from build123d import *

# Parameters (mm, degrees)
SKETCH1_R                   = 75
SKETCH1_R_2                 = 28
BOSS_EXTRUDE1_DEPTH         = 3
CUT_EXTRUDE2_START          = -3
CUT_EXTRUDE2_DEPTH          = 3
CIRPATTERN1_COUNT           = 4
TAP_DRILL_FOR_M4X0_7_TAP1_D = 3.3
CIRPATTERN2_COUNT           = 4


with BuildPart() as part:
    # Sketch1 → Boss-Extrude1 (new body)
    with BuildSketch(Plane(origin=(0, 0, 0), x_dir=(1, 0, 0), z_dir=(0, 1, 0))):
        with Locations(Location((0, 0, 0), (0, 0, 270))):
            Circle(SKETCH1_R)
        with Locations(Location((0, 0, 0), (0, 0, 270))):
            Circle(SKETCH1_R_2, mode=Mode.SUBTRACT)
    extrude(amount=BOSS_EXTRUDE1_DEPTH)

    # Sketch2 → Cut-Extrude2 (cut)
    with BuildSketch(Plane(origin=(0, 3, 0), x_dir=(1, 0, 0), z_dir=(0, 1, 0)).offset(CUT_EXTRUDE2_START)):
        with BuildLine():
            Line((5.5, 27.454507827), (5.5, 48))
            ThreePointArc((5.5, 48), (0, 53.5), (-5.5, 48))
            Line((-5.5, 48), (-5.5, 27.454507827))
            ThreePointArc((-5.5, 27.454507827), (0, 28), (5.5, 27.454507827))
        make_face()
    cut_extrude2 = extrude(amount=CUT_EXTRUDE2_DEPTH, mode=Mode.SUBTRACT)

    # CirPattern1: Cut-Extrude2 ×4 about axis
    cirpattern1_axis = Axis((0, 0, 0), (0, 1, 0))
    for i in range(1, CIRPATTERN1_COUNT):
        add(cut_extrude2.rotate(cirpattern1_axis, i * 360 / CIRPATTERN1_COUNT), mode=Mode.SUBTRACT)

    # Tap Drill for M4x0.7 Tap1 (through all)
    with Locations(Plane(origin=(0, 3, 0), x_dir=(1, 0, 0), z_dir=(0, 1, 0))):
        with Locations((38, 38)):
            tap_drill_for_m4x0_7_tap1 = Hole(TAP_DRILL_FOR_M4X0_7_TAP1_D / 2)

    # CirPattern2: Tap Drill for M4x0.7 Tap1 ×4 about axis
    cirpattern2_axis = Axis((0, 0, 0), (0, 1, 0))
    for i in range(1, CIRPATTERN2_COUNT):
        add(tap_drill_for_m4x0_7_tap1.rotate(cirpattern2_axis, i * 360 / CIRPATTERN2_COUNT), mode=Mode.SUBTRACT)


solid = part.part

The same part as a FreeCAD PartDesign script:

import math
import FreeCAD as App
import Part
import Sketcher

V = App.Vector
Q = App.Units.Quantity

doc = App.newDocument("Part")
body = doc.addObject("PartDesign::Body", "Body")

# Sketch on XZ plane
sketch1 = doc.addObject("Sketcher::SketchObject", "Sketch")
body.addObject(sketch1)
sketch1.AttachmentSupport = (doc.XZ_Plane, [""])
sketch1.MapMode = "FlatFace"
sketch1.addGeometry([
    Part.Circle(V(0, 0, 0), V(0, 0, 1), 75),
    Part.Circle(V(0, 0, 0), V(0, 0, 1), 28),
], False)
sketch1.addConstraint([
    Sketcher.Constraint("Coincident", 0, 3, -1, 1),
    Sketcher.Constraint("Coincident", 1, 3, -1, 1),
    Sketcher.Constraint("Diameter", 0, Q("150 mm")),
    Sketcher.Constraint("Diameter", 1, Q("56 mm")),
])
pad1 = doc.addObject("PartDesign::Pad", "Pad")
body.addObject(pad1)
pad1.Profile = sketch1
pad1.Length = 3
pad1.Reversed = True

# Sketch on XZ plane
sketch2 = doc.addObject("Sketcher::SketchObject", "Sketch001")
body.addObject(sketch2)
sketch2.AttachmentSupport = (doc.XZ_Plane, [""])
sketch2.MapMode = "FlatFace"
sketch2.addGeometry([
    Part.LineSegment(V(6, -27, 0), V(6, -48, 0)),
    Part.ArcOfCircle(Part.Circle(V(0, -48, 0), V(0, 0, 1), 6), math.radians(180), math.radians(360)),
    Part.LineSegment(V(-6, -48, 0), V(-6, -27, 0)),
    Part.ArcOfCircle(Part.Circle(V(0, 0, 0), V(0, 0, 1), 28), math.radians(-101), math.radians(-79)),
], False)
sketch2.addConstraint([
    Sketcher.Constraint("Tangent", 0, 2, 1, 2),
    Sketcher.Constraint("Tangent", 1, 1, 2, 1),
    Sketcher.Constraint("Coincident", 2, 2, 3, 1),
    Sketcher.Constraint("Coincident", 3, 2, 0, 1),
    Sketcher.Constraint("Vertical", 0),
    Sketcher.Constraint("Vertical", 2),
    Sketcher.Constraint("Coincident", 3, 3, -1, 1),
    Sketcher.Constraint("PointOnObject", 1, 3, -2),
    Sketcher.Constraint("Radius", 3, Q("28 mm")),
    Sketcher.Constraint("Radius", 1, Q("5.5 mm")),
    Sketcher.Constraint("DistanceY", 1, 3, -1, 1, Q("48 mm")),
])
pocket1 = doc.addObject("PartDesign::Pocket", "Pocket")
body.addObject(pocket1)
pocket1.Profile = sketch2
pocket1.Length = 3
doc.recompute()

polarpattern = doc.addObject("PartDesign::PolarPattern", "PolarPattern")
body.addObject(polarpattern)
polarpattern.Originals = [pocket1]
polarpattern.Axis = (doc.Y_Axis, [""])
polarpattern.Angle = 360
polarpattern.Occurrences = 4
body.Tip = polarpattern

# Sketch on XZ plane
sketch3 = doc.addObject("Sketcher::SketchObject", "Sketch002")
body.addObject(sketch3)
sketch3.AttachmentSupport = (doc.XZ_Plane, [""])
sketch3.MapMode = "FlatFace"
sketch3.AttachmentOffset = App.Placement(V(0, 0, -3), App.Rotation())
sketch3.addGeometry(Part.Circle(V(38, -38, 0), V(0, 0, 1), 1.6), False)
sketch3.addConstraint([
    Sketcher.Constraint("Diameter", 0, Q("3.3 mm")),
    Sketcher.Constraint("DistanceX", -1, 1, 0, 3, Q("38 mm")),
    Sketcher.Constraint("DistanceY", 0, 3, -1, 1, Q("38 mm")),
])
doc.recompute()
hole = doc.addObject("PartDesign::Hole", "Hole")
body.addObject(hole)
hole.Profile = sketch3
hole.ThreadType = "None"
hole.Diameter = 3.3
hole.DepthType = "ThroughAll"
hole.Reversed = True
doc.recompute()

polarpattern2 = doc.addObject("PartDesign::PolarPattern", "PolarPattern001")
body.addObject(polarpattern2)
polarpattern2.Originals = [hole]
polarpattern2.Axis = (doc.Y_Axis, [""])
polarpattern2.Angle = 360
polarpattern2.Occurrences = 4
body.Tip = polarpattern2

doc.recompute()
